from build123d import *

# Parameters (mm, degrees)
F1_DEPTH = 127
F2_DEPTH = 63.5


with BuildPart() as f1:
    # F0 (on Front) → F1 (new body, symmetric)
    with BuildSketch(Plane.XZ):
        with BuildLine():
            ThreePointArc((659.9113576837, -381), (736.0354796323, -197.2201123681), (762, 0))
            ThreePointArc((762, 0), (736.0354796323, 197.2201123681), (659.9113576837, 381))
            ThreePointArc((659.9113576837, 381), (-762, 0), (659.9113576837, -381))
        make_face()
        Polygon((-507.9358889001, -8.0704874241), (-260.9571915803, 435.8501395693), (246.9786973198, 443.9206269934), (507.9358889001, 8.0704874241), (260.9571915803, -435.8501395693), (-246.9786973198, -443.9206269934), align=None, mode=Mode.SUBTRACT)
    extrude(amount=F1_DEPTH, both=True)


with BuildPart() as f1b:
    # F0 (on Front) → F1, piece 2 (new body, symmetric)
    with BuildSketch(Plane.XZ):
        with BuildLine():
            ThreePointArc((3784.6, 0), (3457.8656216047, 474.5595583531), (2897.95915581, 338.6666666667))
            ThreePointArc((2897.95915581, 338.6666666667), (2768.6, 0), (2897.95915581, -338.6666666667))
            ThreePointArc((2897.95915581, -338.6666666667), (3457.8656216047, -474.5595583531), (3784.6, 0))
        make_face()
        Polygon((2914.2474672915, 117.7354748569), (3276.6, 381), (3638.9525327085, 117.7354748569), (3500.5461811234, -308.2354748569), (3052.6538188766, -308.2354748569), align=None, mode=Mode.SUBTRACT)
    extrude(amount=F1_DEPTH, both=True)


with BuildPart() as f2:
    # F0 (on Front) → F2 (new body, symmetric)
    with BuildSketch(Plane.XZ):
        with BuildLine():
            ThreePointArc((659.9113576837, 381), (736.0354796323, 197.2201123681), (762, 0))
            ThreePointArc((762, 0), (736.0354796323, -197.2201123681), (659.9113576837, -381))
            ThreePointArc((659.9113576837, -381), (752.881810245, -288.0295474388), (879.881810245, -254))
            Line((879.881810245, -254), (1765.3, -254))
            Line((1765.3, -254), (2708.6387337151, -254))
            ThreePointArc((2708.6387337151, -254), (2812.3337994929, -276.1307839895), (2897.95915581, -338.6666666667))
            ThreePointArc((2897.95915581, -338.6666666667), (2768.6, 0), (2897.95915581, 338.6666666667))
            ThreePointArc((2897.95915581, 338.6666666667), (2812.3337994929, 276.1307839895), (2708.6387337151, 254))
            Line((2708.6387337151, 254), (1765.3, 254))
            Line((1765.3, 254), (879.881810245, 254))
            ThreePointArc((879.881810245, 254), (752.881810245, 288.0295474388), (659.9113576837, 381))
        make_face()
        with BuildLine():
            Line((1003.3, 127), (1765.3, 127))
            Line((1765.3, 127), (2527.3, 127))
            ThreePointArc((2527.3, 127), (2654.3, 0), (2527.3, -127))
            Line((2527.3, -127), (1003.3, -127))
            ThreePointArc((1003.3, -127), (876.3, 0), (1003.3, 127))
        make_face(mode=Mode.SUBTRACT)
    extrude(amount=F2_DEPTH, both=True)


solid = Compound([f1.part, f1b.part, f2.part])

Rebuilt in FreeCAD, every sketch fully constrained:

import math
import FreeCAD as App
import Part
import Sketcher

V = App.Vector
Q = App.Units.Quantity


def add_polygon(sketch, points):
    """Adds a closed chain of lines whose ends are joined by coincident constraints."""
    first, n = sketch.GeometryCount, len(points)
    for a, b in zip(points, points[1:] + points[:1]):
        sketch.addGeometry(Part.LineSegment(App.Vector(*a, 0), App.Vector(*b, 0)), False)
    for i in range(n):
        sketch.addConstraint(Sketcher.Constraint("Coincident", first + i, 2, first + (i + 1) % n, 1))

doc = App.newDocument("Part")
body = doc.addObject("PartDesign::Body", "Body")

# Sketch on XZ plane
sketch1 = body.newObject("Sketcher::SketchObject", "Sketch")
sketch1.AttachmentSupport = (doc.getObject("XZ_Plane"), [""])
sketch1.MapMode = "FlatFace"
sketch1.addGeometry(Part.Circle(V(0, 0, 0), V(0, 0, 1), 762), False)  # 0
add_polygon(sketch1, [(-247, -444), (-508, -8), (-261, 436), (247, 444), (508, 8), (261, -436)])  # lines 1-6
sketch1.addConstraint(Sketcher.Constraint("Coincident", 0, 3, -1, 1))
sketch1.addConstraint(Sketcher.Constraint("Symmetric", 1, 2, 4, 2, -1, 1))
sketch1.addConstraint(Sketcher.Constraint("Symmetric", 2, 2, 5, 2, -1, 1))
sketch1.addConstraint(Sketcher.Constraint("Symmetric", 3, 2, 6, 2, -1, 1))
sketch1.addConstraint(Sketcher.Constraint("Equal", 1, 2))
sketch1.addConstraint(Sketcher.Constraint("Equal", 2, 3))
sketch1.addConstraint(Sketcher.Constraint("Diameter", 0, Q("60 in")))
sketch1.addConstraint(Sketcher.Constraint("Distance", 1, Q("20 in")))
sketch1.addConstraint(Sketcher.Constraint("DistanceX", 1, 2, -1, 1, 507.935889))
sketch1.addConstraint(Sketcher.Constraint("DistanceX", 2, 2, -1, 1, 260.957192))
sketch1.addConstraint(Sketcher.Constraint("DistanceY", -1, 1, 2, 2, 435.85014))
pad1 = body.newObject("PartDesign::Pad", "Pad")
pad1.Profile = sketch1
pad1.Length = Q("10 in")
pad1.Midplane = True
body2 = doc.addObject("PartDesign::Body", "Body001")

# Sketch on XZ plane
sketch2 = body2.newObject("Sketcher::SketchObject", "Sketch001")
sketch2.AttachmentSupport = (doc.getObject("XZ_Plane001"), [""])
sketch2.MapMode = "FlatFace"
sketch2.addGeometry(Part.Circle(V(3277, 0, 0), V(0, 0, 1), 508), False)  # 0
add_polygon(sketch2, [(3053, -308), (2914, 118), (3277, 381), (3639, 118), (3501, -308)])  # lines 1-5
sketch2.addConstraint(Sketcher.Constraint("Horizontal", 5))
sketch2.addConstraint(Sketcher.Constraint("PointOnObject", 0, 3, -1))
sketch2.addConstraint(Sketcher.Constraint("Horizontal", 1, 2, 3, 2))
sketch2.addConstraint(Sketcher.Constraint("Vertical", 0, 3, 2, 2))
sketch2.addConstraint(Sketcher.Constraint("Equal", 1, 2))
sketch2.addConstraint(Sketcher.Constraint("Equal", 2, 3))
sketch2.addConstraint(Sketcher.Constraint("Equal", 3, 4))
sketch2.addConstraint(Sketcher.Constraint("Diameter", 0, Q("40 in")))
sketch2.addConstraint(Sketcher.Constraint("DistanceX", -1, 1, 0, 3, Q("129 in")))
sketch2.addConstraint(Sketcher.Constraint("DistanceY", -1, 1, 2, 2, Q("15 in")))
sketch2.addConstraint(Sketcher.Constraint("Angle", 1, Q("108 deg")))
sketch2.addConstraint(Sketcher.Constraint("Angle", 2, Q("36 deg")))
sketch2.addConstraint(Sketcher.Constraint("DistanceX", 5, 2, 5, 1, 447.892362))
pad2 = body2.newObject("PartDesign::Pad", "Pad001")
pad2.Profile = sketch2
pad2.Length = Q("10 in")
pad2.Midplane = True
body3 = doc.addObject("PartDesign::Body", "Body002")

# Sketch on XZ plane
sketch3 = body3.newObject("Sketcher::SketchObject", "Sketch002")
sketch3.AttachmentSupport = (doc.getObject("XZ_Plane002"), [""])
sketch3.MapMode = "FlatFace"
sketch3.addGeometry(Part.ArcOfCircle(Part.Circle(V(0, 0, 0), V(0, 0, 1), 762), math.radians(-30), math.radians(30)), False)
sketch3.addGeometry(Part.ArcOfCircle(Part.Circle(V(880, -508, 0), V(0, 0, 1), 254), math.radians(90), math.radians(150)), False)
sketch3.addGeometry(Part.LineSegment(V(880, -254, 0), V(2709, -254, 0)), False)
sketch3.addGeometry(Part.ArcOfCircle(Part.Circle(V(2709, -508, 0), V(0, 0, 1), 254), math.radians(42), math.radians(90)), False)
sketch3.addGeometry(Part.ArcOfCircle(Part.Circle(V(3277, 0, 0), V(0, 0, 1), 508), math.radians(138), math.radians(222)), False)
sketch3.addGeometry(Part.ArcOfCircle(Part.Circle(V(2709, 508, 0), V(0, 0, 1), 254), math.radians(-90), math.radians(-42)), False)
sketch3.addGeometry(Part.LineSegment(V(2709, 254, 0), V(880, 254, 0)), False)
sketch3.addGeometry(Part.ArcOfCircle(Part.Circle(V(880, 508, 0), V(0, 0, 1), 254), math.radians(-150), math.radians(-90)), False)
sketch3.addGeometry(Part.ArcOfCircle(Part.Circle(V(1003, 0, 0), V(0, 0, 1), 127), math.radians(90), math.radians(270)), False)
sketch3.addGeometry(Part.LineSegment(V(1003, 127, 0), V(2527, 127, 0)), False)
sketch3.addGeometry(Part.ArcOfCircle(Part.Circle(V(2527, 0, 0), V(0, 0, 1), 127), math.radians(-90), math.radians(90)), False)
sketch3.addGeometry(Part.LineSegment(V(2527, -127, 0), V(1003, -127, 0)), False)
sketch3.addConstraint(Sketcher.Constraint("Tangent", 0, 1, 1, 2))
sketch3.addConstraint(Sketcher.Constraint("Tangent", 1, 1, 2, 1))
sketch3.addConstraint(Sketcher.Constraint("Tangent", 2, 2, 3, 2))
sketch3.addConstraint(Sketcher.Constraint("Tangent", 3, 1, 4, 2))
sketch3.addConstraint(Sketcher.Constraint("Tangent", 4, 1, 5, 2))
sketch3.addConstraint(Sketcher.Constraint("Tangent", 5, 1, 6, 1))
sketch3.addConstraint(Sketcher.Constraint("Tangent", 6, 2, 7, 2))
sketch3.addConstraint(Sketcher.Constraint("Tangent", 7, 1, 0, 2))
sketch3.addConstraint(Sketcher.Constraint("Tangent", 8, 1, 9, 1))
sketch3.addConstraint(Sketcher.Constraint("Tangent", 9, 2, 10, 2))
sketch3.addConstraint(Sketcher.Constraint("Tangent", 10, 1, 11, 1))
sketch3.addConstraint(Sketcher.Constraint("Tangent", 11, 2, 8, 2))
sketch3.addConstraint(Sketcher.Constraint("Horizontal", 2))
sketch3.addConstraint(Sketcher.Constraint("Horizontal", 6))
sketch3.addConstraint(Sketcher.Constraint("Horizontal", 9))
sketch3.addConstraint(Sketcher.Constraint("Horizontal", 11))
sketch3.addConstraint(Sketcher.Constraint("Coincident", 0, 3, -1, 1))
sketch3.addConstraint(Sketcher.Constraint("Equal", 1, 3))
sketch3.addConstraint(Sketcher.Constraint("Equal", 3, 5))
sketch3.addConstraint(Sketcher.Constraint("Equal", 5, 7))
sketch3.addConstraint(Sketcher.Constraint("Symmetric", 3, 3, 5, 3, -1))
sketch3.addConstraint(Sketcher.Constraint("PointOnObject", 8, 3, -1))
sketch3.addConstraint(Sketcher.Constraint("Radius", 0, Q("30 in")))
sketch3.addConstraint(Sketcher.Constraint("Radius", 1, Q("10 in")))
sketch3.addConstraint(Sketcher.Constraint("Radius", 4, Q("20 in")))
sketch3.addConstraint(Sketcher.Constraint("Radius", 8, Q("5 in")))
sketch3.addConstraint(Sketcher.Constraint("DistanceX", 9, 1, 9, 2, Q("60 in")))
sketch3.addConstraint(Sketcher.Constraint("DistanceY", 1, 3, -1, 1, Q("20 in")))
sketch3.addConstraint(Sketcher.Constraint("DistanceX", -1, 1, 4, 3, Q("129 in")))
sketch3.addConstraint(Sketcher.Constraint("DistanceX", -1, 1, 8, 3, Q("39.5 in")))
pad3 = body3.newObject("PartDesign::Pad", "Pad002")
pad3.Profile = sketch3
pad3.Length = Q("5 in")
pad3.Midplane = True

doc.recompute()
